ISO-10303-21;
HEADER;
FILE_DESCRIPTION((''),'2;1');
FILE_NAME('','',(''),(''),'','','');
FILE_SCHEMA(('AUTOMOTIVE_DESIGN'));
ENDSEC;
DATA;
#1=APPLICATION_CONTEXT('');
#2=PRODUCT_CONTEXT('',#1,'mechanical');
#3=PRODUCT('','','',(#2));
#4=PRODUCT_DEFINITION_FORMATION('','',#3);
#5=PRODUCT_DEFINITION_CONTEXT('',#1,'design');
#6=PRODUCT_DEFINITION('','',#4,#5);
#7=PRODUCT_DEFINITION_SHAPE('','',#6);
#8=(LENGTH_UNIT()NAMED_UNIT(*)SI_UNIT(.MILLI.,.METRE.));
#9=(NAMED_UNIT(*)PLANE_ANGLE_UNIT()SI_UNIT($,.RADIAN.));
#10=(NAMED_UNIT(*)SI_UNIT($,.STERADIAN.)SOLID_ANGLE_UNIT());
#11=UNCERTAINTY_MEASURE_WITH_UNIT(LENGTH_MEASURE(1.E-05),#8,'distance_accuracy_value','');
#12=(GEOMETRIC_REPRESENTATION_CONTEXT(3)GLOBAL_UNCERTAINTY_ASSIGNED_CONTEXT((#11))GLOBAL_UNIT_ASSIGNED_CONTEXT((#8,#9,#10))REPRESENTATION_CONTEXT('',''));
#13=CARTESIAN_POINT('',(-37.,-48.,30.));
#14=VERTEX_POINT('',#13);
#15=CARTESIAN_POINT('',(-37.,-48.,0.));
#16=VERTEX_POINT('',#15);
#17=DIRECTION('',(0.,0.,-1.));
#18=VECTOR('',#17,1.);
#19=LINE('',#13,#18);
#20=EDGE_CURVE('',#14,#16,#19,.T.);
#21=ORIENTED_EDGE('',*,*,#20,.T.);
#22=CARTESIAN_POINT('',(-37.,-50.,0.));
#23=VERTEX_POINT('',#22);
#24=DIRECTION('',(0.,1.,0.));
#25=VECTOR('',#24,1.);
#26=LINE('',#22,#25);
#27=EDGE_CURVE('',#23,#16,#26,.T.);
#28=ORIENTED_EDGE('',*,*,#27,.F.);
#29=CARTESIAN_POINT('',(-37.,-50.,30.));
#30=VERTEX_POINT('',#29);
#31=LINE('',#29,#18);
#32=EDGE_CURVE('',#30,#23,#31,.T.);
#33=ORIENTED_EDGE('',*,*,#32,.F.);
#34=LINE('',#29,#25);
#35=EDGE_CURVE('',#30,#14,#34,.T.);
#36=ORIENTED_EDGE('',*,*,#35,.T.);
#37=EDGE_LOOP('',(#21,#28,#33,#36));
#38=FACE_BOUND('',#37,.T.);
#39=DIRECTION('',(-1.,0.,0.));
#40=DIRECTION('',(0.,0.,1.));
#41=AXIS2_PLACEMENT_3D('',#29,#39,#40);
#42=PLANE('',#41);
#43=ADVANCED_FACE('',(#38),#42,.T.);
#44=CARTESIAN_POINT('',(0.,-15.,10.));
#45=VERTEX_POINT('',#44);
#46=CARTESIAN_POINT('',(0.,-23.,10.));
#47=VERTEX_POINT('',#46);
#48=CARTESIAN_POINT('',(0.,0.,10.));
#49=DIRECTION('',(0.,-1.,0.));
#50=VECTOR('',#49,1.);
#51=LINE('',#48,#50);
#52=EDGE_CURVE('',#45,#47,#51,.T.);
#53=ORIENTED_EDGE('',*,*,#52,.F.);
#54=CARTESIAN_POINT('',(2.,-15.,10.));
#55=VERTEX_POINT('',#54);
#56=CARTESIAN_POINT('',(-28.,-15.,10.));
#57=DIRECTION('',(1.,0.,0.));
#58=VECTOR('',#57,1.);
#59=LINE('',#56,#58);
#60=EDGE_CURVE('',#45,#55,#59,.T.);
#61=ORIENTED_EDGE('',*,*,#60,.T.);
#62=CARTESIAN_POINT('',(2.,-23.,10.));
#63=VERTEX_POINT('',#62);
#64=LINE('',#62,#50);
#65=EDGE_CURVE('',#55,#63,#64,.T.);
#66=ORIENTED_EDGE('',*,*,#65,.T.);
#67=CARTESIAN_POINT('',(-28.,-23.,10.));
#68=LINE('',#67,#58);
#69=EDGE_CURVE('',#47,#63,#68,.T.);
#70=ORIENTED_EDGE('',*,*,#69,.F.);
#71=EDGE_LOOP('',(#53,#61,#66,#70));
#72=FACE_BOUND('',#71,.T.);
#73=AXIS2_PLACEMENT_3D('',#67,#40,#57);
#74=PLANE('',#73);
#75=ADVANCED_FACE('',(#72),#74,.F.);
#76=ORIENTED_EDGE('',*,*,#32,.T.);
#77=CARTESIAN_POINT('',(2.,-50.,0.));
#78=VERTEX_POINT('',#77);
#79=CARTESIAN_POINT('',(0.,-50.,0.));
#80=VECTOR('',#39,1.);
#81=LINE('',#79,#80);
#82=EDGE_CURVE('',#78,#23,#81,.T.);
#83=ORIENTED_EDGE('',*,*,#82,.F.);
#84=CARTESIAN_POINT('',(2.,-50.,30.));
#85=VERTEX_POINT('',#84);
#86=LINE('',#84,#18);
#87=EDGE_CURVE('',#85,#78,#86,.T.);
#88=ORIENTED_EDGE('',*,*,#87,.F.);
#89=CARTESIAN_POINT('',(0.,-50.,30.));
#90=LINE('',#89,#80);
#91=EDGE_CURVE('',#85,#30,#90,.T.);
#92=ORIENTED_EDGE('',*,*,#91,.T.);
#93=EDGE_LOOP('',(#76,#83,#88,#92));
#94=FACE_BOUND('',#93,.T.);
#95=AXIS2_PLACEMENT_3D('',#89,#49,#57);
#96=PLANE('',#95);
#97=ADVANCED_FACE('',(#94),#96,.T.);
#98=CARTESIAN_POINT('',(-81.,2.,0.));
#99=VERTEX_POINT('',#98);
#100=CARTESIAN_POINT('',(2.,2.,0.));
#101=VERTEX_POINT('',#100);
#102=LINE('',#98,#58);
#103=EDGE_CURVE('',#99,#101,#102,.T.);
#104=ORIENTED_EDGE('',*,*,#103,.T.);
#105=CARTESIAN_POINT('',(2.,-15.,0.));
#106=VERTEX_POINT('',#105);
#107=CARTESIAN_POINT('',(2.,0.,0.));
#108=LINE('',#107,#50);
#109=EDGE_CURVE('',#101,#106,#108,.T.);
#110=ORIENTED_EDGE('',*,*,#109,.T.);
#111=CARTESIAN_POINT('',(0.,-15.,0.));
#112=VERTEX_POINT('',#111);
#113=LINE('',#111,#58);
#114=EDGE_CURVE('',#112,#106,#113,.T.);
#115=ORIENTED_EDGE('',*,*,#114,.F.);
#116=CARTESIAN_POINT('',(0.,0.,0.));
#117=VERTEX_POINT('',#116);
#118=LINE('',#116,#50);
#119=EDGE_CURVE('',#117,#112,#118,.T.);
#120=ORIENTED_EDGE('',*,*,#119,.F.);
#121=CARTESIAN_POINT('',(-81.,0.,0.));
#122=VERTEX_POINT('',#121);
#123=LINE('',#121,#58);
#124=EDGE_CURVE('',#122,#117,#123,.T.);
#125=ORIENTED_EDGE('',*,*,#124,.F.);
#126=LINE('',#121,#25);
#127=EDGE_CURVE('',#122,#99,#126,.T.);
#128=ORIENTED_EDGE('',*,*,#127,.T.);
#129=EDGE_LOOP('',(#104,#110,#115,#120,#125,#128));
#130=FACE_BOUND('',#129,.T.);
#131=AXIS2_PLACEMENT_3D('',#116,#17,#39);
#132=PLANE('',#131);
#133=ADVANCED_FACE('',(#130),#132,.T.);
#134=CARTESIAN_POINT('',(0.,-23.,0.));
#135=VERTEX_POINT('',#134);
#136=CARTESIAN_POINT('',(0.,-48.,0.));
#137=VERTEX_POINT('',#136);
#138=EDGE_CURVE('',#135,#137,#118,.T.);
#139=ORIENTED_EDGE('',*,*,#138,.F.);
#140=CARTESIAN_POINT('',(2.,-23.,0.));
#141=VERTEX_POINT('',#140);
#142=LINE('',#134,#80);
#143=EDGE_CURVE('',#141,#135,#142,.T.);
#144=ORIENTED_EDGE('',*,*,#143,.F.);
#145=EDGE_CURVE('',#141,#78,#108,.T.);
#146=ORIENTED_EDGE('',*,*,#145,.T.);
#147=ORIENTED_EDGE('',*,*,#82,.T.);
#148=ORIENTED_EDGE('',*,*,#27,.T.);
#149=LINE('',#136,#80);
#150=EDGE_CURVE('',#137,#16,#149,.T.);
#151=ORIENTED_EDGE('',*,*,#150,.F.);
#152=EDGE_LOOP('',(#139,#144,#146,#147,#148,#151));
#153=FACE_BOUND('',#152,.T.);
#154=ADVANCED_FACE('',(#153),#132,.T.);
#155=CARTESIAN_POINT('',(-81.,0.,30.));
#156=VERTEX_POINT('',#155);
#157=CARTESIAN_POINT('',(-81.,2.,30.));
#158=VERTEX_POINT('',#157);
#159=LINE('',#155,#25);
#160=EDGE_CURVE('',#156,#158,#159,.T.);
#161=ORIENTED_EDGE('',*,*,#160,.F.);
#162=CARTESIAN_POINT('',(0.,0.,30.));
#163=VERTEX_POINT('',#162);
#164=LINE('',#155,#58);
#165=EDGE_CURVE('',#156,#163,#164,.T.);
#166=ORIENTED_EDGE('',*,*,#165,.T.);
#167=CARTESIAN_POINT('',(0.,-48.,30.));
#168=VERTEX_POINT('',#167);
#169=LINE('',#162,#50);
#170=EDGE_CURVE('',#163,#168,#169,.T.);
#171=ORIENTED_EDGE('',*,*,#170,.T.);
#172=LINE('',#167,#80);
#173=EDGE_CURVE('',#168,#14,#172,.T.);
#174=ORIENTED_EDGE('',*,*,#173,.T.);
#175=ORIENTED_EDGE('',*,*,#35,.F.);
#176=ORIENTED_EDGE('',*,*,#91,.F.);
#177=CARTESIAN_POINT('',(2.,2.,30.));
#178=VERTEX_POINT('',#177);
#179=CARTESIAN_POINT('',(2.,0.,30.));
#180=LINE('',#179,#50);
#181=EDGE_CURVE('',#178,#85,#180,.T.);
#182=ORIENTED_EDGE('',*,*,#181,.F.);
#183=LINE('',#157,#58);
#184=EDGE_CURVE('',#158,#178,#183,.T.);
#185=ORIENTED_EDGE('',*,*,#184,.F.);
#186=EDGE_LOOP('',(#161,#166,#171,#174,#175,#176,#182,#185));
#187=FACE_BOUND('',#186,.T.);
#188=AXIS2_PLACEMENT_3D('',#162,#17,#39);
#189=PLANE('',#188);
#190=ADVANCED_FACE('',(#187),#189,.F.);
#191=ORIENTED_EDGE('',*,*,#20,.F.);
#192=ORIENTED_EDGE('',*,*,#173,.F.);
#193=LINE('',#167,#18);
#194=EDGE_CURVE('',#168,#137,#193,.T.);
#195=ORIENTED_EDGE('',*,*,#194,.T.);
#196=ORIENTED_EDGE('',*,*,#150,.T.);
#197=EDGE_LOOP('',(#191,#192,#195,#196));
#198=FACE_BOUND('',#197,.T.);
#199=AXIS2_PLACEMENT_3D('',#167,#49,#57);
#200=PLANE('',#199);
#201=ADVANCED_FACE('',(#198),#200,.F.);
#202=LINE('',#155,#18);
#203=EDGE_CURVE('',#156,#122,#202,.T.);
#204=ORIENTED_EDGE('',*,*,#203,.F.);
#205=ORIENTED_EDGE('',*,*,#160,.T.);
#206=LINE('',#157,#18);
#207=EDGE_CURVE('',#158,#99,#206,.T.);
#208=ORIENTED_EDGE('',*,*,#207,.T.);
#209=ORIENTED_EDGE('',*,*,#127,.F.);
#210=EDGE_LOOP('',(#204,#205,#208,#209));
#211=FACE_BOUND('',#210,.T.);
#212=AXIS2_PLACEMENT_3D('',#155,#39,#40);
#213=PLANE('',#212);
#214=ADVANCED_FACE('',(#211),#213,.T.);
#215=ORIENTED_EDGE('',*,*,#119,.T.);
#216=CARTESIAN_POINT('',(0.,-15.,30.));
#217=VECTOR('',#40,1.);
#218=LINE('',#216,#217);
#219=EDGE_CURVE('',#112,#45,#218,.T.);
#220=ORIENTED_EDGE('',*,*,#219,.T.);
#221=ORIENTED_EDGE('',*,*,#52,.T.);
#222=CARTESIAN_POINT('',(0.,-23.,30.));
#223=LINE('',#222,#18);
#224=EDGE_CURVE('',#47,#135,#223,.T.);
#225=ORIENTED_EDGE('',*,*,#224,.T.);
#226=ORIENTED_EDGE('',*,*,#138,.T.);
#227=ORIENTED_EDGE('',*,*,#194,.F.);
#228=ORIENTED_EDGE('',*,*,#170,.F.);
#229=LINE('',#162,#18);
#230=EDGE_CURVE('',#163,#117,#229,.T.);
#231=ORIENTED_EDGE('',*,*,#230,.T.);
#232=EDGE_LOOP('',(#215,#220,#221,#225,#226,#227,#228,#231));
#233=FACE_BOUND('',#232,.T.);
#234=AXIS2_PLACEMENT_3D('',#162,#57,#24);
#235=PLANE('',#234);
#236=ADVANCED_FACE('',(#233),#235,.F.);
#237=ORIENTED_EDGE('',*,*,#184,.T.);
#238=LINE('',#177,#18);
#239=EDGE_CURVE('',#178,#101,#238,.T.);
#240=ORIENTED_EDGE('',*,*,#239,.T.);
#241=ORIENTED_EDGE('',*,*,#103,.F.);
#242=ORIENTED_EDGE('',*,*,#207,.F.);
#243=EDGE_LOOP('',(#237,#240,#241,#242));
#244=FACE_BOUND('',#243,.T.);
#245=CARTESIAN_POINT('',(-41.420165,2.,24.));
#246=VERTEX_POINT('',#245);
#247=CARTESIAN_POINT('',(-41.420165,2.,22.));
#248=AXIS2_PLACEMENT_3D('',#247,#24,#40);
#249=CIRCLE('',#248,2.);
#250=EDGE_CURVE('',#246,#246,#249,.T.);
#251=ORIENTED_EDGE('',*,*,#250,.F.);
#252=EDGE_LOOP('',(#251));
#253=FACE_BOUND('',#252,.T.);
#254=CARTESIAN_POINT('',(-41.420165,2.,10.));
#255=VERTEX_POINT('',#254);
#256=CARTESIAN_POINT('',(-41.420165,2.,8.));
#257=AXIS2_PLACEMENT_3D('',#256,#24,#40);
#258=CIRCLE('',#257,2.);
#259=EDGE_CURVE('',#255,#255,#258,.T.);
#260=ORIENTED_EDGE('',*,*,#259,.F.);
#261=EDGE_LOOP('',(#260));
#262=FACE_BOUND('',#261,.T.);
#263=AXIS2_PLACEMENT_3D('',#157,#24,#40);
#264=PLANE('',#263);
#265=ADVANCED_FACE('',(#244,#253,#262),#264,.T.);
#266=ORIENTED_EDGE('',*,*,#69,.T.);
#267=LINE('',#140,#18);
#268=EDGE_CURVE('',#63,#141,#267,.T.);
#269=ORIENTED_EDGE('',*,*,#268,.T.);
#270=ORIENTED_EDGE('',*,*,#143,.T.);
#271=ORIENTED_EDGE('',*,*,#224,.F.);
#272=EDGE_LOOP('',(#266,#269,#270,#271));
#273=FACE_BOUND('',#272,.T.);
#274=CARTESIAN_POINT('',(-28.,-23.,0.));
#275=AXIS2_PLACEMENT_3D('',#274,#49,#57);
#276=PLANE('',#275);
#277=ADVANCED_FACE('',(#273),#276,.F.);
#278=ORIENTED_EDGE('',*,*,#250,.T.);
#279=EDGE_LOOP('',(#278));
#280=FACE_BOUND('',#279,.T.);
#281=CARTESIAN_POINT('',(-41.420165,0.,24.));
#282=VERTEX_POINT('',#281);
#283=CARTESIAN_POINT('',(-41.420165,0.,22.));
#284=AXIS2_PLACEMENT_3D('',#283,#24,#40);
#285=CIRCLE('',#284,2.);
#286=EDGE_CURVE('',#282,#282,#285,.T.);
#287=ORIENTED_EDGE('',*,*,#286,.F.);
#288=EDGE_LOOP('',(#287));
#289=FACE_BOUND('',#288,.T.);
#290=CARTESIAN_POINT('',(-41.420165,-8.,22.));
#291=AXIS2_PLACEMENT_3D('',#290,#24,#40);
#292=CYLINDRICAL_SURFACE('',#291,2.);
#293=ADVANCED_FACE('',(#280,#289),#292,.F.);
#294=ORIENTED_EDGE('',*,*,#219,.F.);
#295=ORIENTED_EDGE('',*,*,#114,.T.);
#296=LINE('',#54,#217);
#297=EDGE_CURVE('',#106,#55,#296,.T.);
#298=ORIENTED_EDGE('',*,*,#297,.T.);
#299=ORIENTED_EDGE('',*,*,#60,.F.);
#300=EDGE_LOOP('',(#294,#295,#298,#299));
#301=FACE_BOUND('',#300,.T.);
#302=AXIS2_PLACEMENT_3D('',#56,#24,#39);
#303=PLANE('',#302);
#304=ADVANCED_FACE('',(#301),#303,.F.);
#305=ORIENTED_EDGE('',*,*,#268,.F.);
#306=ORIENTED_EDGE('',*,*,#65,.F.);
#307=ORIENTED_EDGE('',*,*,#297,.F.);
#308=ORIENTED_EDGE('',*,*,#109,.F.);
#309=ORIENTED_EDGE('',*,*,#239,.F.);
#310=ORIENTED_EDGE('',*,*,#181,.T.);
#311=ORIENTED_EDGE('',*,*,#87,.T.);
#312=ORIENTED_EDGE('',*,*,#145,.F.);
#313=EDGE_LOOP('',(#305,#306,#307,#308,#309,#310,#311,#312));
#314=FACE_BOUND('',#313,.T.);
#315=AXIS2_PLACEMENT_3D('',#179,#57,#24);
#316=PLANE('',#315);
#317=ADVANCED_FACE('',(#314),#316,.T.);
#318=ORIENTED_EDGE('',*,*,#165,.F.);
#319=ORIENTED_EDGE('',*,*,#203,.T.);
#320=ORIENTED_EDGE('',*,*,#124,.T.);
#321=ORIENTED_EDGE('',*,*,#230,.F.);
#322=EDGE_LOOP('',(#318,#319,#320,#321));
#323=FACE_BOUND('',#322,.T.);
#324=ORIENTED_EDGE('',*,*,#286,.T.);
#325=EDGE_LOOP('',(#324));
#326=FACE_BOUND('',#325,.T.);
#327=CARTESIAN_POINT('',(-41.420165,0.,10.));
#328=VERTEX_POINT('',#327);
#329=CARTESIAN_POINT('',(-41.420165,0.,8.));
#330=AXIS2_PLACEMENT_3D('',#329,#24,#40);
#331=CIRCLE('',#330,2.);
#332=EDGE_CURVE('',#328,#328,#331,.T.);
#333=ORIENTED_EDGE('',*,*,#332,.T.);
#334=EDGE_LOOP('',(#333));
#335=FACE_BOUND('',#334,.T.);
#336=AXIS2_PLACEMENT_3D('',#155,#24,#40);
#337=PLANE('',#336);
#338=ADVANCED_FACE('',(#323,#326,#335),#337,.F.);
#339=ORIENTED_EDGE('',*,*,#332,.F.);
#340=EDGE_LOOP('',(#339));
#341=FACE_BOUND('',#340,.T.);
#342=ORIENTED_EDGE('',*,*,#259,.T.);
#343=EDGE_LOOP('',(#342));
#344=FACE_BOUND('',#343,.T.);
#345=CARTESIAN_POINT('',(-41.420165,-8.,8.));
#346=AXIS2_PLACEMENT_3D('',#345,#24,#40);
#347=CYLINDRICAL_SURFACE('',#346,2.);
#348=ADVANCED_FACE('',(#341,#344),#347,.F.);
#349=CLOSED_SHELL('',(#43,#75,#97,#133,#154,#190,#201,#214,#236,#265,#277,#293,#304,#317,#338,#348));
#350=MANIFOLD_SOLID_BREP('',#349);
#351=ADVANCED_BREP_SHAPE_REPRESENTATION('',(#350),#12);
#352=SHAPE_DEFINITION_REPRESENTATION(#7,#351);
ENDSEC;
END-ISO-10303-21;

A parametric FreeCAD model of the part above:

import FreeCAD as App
import Part
import Sketcher
Q = App.Units.Quantity

doc = App.newDocument("Part")
body = doc.addObject("PartDesign::Body", "Body")

sketch1 = body.newObject("Sketcher::SketchObject", "Sketch")
sketch1.AttachmentSupport = (doc.getObject("XY_Plane"), [""])
sketch1.MapMode = "FlatFace"
sketch1.addGeometry([
    Part.LineSegment(App.Vector(-81, 0, 0), App.Vector(0, 0, 0)),
    Part.LineSegment(App.Vector(0, 0, 0), App.Vector(0, -48, 0)),
    Part.LineSegment(App.Vector(0, -48, 0), App.Vector(-37, -48, 0)),
    Part.LineSegment(App.Vector(-37, -48, 0), App.Vector(-37, -50, 0)),
    Part.LineSegment(App.Vector(-37, -50, 0), App.Vector(2, -50, 0)),
    Part.LineSegment(App.Vector(2, -50, 0), App.Vector(2, 2, 0)),
    Part.LineSegment(App.Vector(2, 2, 0), App.Vector(-81, 2, 0)),
    Part.LineSegment(App.Vector(-81, 2, 0), App.Vector(-81, 0, 0)),
], False)
sketch1.addConstraint([
    Sketcher.Constraint("Coincident", 0, 2, 1, 1),
    Sketcher.Constraint("Coincident", 1, 2, 2, 1),
    Sketcher.Constraint("Coincident", 2, 2, 3, 1),
    Sketcher.Constraint("Coincident", 3, 2, 4, 1),
    Sketcher.Constraint("Coincident", 4, 2, 5, 1),
    Sketcher.Constraint("Coincident", 5, 2, 6, 1),
    Sketcher.Constraint("Coincident", 6, 2, 7, 1),
    Sketcher.Constraint("Coincident", 7, 2, 0, 1),
    Sketcher.Constraint("Horizontal", 0),
    Sketcher.Constraint("Vertical", 1),
    Sketcher.Constraint("Horizontal", 2),
    Sketcher.Constraint("Vertical", 3),
    Sketcher.Constraint("Horizontal", 4),
    Sketcher.Constraint("Vertical", 5),
    Sketcher.Constraint("Horizontal", 6),
    Sketcher.Constraint("Vertical", 7),
    Sketcher.Constraint("Coincident", 0, 2, -1, 1),
    Sketcher.Constraint("Equal", 3, 7),
    Sketcher.Constraint("DistanceX", 0, 1, 0, 2, Q("81 mm")),
    Sketcher.Constraint("DistanceX", 2, 2, 2, 1, Q("37 mm")),
    Sketcher.Constraint("DistanceX", 4, 1, 4, 2, Q("39 mm")),
    Sketcher.Constraint("DistanceY", 1, 2, 1, 1, Q("48 mm")),
    Sketcher.Constraint("DistanceY", 3, 2, 3, 1, Q("2 mm")),
])
pad1 = body.newObject("PartDesign::Pad", "Pad")
pad1.Profile = sketch1
pad1.Length = 30

sketch2 = body.newObject("Sketcher::SketchObject", "Sketch001")
sketch2.AttachmentSupport = (doc.getObject("YZ_Plane"), [""])
sketch2.MapMode = "FlatFace"
sketch2.AttachmentOffset = App.Placement(App.Vector(0, 0, 2), App.Rotation())
sketch2.addGeometry([
    Part.LineSegment(App.Vector(-15, 10, 0), App.Vector(-23, 10, 0)),
    Part.LineSegment(App.Vector(-23, 10, 0), App.Vector(-23, 0, 0)),
    Part.LineSegment(App.Vector(-23, 0, 0), App.Vector(-15, 0, 0)),
    Part.LineSegment(App.Vector(-15, 0, 0), App.Vector(-15, 10, 0)),
], False)
sketch2.addConstraint([
    Sketcher.Constraint("Coincident", 0, 2, 1, 1),
    Sketcher.Constraint("Coincident", 1, 2, 2, 1),
    Sketcher.Constraint("Coincident", 2, 2, 3, 1),
    Sketcher.Constraint("Coincident", 3, 2, 0, 1),
    Sketcher.Constraint("Horizontal", 0),
    Sketcher.Constraint("Vertical", 1),
    Sketcher.Constraint("Horizontal", 2),
    Sketcher.Constraint("Vertical", 3),
    Sketcher.Constraint("PointOnObject", 1, 2, -1),
    Sketcher.Constraint("DistanceX", 0, 2, 0, 1, Q("8 mm")),
    Sketcher.Constraint("DistanceY", 1, 2, 1, 1, Q("10 mm")),
    Sketcher.Constraint("DistanceX", 0, 2, -1, 1, Q("23 mm")),
])
pocket1 = body.newObject("PartDesign::Pocket", "Pocket")
pocket1.Profile = sketch2
pocket1.Length = 30

sketch3 = body.newObject("Sketcher::SketchObject", "Sketch002")
sketch3.AttachmentSupport = (doc.getObject("XZ_Plane"), [""])
sketch3.MapMode = "FlatFace"
sketch3.AttachmentOffset = App.Placement(App.Vector(0, 0, -2), App.Rotation())
sketch3.addGeometry([
    Part.Circle(App.Vector(-41.4, 8, 0), App.Vector(0, 0, 1), 2),
    Part.Circle(App.Vector(-41.4, 22, 0), App.Vector(0, 0, 1), 2),
], False)
sketch3.addConstraint([
    Sketcher.Constraint("Equal", 0, 1),
    Sketcher.Constraint("Vertical", 0, 3, 1, 3),
    Sketcher.Constraint("Diameter", 0, Q("4 mm")),
    Sketcher.Constraint("DistanceY", -1, 1, 0, 3, Q("8 mm")),
    Sketcher.Constraint("DistanceY", -1, 1, 1, 3, Q("22 mm")),
    Sketcher.Constraint("DistanceX", 0, 3, -1, 1, Q("41.420165 mm")),
])
pocket2 = body.newObject("PartDesign::Pocket", "Pocket001")
pocket2.Profile = sketch3
pocket2.Length = 10
pocket2.Reversed = True

doc.recompute()
